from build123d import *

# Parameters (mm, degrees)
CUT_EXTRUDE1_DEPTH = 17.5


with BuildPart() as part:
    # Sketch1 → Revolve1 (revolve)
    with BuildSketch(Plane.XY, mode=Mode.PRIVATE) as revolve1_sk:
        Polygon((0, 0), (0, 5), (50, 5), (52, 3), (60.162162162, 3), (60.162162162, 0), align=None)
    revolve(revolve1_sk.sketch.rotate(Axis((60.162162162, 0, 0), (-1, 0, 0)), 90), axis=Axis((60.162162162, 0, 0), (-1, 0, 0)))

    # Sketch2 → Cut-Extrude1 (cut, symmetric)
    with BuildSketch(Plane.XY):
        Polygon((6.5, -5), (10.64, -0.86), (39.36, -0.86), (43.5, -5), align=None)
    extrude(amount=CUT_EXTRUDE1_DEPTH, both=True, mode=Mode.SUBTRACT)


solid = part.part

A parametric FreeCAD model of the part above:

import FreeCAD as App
import Part
import Sketcher

V = App.Vector
Q = App.Units.Quantity

doc = App.newDocument("Part")
body = doc.addObject("PartDesign::Body", "Body")

sketch1 = body.newObject("Sketcher::SketchObject", "Sketch")
sketch1.AttachmentSupport = (doc.getObject("XY_Plane"), [""])
sketch1.MapMode = "FlatFace"
sketch1.addGeometry([
    Part.LineSegment(V(0, 5, 0), V(0, 0, 0)),
    Part.LineSegment(V(0, 0, 0), V(60.162162, 0, 0)),
    Part.LineSegment(V(60.162162, 0, 0), V(60.162162, 3, 0)),
    Part.LineSegment(V(60.162162, 3, 0), V(52, 3, 0)),
    Part.LineSegment(V(52, 3, 0), V(50, 5, 0)),
    Part.LineSegment(V(50, 5, 0), V(0, 5, 0)),
], False)
sketch1.addConstraint([
    Sketcher.Constraint("Coincident", 0, 2, 1, 1),
    Sketcher.Constraint("Coincident", 1, 2, 2, 1),
    Sketcher.Constraint("Coincident", 2, 2, 3, 1),
    Sketcher.Constraint("Coincident", 3, 2, 4, 1),
    Sketcher.Constraint("Coincident", 4, 2, 5, 1),
    Sketcher.Constraint("Coincident", 5, 2, 0, 1),
    Sketcher.Constraint("Vertical", 0),
    Sketcher.Constraint("Horizontal", 1),
    Sketcher.Constraint("Vertical", 2),
    Sketcher.Constraint("Horizontal", 3),
    Sketcher.Constraint("Horizontal", 5),
    Sketcher.Constraint("Coincident", 0, 2, -1, 1),
    Sketcher.Constraint("DistanceX", 5, 2, 5, 1, Q("50 mm")),
    Sketcher.Constraint("DistanceY", 0, 2, 0, 1, Q("5 mm")),
    Sketcher.Constraint("DistanceY", 2, 1, 2, 2, Q("3 mm")),
    Sketcher.Constraint("Angle", 4, Q("135 deg")),
    Sketcher.Constraint("DistanceX", 1, 1, 1, 2, Q("60.162162 mm")),
])
revolution = body.newObject("PartDesign::Revolution", "Revolution")
revolution.Profile = sketch1
revolution.ReferenceAxis = (sketch1, ["H_Axis"])
revolution.Angle = 360

sketch2 = body.newObject("Sketcher::SketchObject", "Sketch001")
sketch2.AttachmentSupport = (doc.getObject("XY_Plane"), [""])
sketch2.MapMode = "FlatFace"
sketch2.addGeometry([
    Part.LineSegment(V(10.64, -0.86, 0), V(6.5, -5, 0)),
    Part.LineSegment(V(6.5, -5, 0), V(43.5, -5, 0)),
    Part.LineSegment(V(43.5, -5, 0), V(39.36, -0.86, 0)),
    Part.LineSegment(V(39.36, -0.86, 0), V(10.64, -0.86, 0)),
], False)
sketch2.addConstraint([
    Sketcher.Constraint("Coincident", 0, 2, 1, 1),
    Sketcher.Constraint("Coincident", 1, 2, 2, 1),
    Sketcher.Constraint("Coincident", 2, 2, 3, 1),
    Sketcher.Constraint("Coincident", 3, 2, 0, 1),
    Sketcher.Constraint("Horizontal", 1),
    Sketcher.Constraint("Horizontal", 3),
    Sketcher.Constraint("Perpendicular", 0, 2),
    Sketcher.Constraint("Equal", 0, 2),
    Sketcher.Constraint("DistanceX", 1, 1, 1, 2, Q("37 mm")),
    Sketcher.Constraint("DistanceY", 0, 2, -1, 1, Q("5 mm")),
    Sketcher.Constraint("DistanceX", 3, 2, 3, 1, Q("28.72 mm")),
    Sketcher.Constraint("DistanceX", -1, 1, 0, 2, Q("6.5 mm")),
])
pocket1 = body.newObject("PartDesign::Pocket", "Pocket")
pocket1.Profile = sketch2
pocket1.Length = 35
pocket1.Midplane = True

doc.recompute()
